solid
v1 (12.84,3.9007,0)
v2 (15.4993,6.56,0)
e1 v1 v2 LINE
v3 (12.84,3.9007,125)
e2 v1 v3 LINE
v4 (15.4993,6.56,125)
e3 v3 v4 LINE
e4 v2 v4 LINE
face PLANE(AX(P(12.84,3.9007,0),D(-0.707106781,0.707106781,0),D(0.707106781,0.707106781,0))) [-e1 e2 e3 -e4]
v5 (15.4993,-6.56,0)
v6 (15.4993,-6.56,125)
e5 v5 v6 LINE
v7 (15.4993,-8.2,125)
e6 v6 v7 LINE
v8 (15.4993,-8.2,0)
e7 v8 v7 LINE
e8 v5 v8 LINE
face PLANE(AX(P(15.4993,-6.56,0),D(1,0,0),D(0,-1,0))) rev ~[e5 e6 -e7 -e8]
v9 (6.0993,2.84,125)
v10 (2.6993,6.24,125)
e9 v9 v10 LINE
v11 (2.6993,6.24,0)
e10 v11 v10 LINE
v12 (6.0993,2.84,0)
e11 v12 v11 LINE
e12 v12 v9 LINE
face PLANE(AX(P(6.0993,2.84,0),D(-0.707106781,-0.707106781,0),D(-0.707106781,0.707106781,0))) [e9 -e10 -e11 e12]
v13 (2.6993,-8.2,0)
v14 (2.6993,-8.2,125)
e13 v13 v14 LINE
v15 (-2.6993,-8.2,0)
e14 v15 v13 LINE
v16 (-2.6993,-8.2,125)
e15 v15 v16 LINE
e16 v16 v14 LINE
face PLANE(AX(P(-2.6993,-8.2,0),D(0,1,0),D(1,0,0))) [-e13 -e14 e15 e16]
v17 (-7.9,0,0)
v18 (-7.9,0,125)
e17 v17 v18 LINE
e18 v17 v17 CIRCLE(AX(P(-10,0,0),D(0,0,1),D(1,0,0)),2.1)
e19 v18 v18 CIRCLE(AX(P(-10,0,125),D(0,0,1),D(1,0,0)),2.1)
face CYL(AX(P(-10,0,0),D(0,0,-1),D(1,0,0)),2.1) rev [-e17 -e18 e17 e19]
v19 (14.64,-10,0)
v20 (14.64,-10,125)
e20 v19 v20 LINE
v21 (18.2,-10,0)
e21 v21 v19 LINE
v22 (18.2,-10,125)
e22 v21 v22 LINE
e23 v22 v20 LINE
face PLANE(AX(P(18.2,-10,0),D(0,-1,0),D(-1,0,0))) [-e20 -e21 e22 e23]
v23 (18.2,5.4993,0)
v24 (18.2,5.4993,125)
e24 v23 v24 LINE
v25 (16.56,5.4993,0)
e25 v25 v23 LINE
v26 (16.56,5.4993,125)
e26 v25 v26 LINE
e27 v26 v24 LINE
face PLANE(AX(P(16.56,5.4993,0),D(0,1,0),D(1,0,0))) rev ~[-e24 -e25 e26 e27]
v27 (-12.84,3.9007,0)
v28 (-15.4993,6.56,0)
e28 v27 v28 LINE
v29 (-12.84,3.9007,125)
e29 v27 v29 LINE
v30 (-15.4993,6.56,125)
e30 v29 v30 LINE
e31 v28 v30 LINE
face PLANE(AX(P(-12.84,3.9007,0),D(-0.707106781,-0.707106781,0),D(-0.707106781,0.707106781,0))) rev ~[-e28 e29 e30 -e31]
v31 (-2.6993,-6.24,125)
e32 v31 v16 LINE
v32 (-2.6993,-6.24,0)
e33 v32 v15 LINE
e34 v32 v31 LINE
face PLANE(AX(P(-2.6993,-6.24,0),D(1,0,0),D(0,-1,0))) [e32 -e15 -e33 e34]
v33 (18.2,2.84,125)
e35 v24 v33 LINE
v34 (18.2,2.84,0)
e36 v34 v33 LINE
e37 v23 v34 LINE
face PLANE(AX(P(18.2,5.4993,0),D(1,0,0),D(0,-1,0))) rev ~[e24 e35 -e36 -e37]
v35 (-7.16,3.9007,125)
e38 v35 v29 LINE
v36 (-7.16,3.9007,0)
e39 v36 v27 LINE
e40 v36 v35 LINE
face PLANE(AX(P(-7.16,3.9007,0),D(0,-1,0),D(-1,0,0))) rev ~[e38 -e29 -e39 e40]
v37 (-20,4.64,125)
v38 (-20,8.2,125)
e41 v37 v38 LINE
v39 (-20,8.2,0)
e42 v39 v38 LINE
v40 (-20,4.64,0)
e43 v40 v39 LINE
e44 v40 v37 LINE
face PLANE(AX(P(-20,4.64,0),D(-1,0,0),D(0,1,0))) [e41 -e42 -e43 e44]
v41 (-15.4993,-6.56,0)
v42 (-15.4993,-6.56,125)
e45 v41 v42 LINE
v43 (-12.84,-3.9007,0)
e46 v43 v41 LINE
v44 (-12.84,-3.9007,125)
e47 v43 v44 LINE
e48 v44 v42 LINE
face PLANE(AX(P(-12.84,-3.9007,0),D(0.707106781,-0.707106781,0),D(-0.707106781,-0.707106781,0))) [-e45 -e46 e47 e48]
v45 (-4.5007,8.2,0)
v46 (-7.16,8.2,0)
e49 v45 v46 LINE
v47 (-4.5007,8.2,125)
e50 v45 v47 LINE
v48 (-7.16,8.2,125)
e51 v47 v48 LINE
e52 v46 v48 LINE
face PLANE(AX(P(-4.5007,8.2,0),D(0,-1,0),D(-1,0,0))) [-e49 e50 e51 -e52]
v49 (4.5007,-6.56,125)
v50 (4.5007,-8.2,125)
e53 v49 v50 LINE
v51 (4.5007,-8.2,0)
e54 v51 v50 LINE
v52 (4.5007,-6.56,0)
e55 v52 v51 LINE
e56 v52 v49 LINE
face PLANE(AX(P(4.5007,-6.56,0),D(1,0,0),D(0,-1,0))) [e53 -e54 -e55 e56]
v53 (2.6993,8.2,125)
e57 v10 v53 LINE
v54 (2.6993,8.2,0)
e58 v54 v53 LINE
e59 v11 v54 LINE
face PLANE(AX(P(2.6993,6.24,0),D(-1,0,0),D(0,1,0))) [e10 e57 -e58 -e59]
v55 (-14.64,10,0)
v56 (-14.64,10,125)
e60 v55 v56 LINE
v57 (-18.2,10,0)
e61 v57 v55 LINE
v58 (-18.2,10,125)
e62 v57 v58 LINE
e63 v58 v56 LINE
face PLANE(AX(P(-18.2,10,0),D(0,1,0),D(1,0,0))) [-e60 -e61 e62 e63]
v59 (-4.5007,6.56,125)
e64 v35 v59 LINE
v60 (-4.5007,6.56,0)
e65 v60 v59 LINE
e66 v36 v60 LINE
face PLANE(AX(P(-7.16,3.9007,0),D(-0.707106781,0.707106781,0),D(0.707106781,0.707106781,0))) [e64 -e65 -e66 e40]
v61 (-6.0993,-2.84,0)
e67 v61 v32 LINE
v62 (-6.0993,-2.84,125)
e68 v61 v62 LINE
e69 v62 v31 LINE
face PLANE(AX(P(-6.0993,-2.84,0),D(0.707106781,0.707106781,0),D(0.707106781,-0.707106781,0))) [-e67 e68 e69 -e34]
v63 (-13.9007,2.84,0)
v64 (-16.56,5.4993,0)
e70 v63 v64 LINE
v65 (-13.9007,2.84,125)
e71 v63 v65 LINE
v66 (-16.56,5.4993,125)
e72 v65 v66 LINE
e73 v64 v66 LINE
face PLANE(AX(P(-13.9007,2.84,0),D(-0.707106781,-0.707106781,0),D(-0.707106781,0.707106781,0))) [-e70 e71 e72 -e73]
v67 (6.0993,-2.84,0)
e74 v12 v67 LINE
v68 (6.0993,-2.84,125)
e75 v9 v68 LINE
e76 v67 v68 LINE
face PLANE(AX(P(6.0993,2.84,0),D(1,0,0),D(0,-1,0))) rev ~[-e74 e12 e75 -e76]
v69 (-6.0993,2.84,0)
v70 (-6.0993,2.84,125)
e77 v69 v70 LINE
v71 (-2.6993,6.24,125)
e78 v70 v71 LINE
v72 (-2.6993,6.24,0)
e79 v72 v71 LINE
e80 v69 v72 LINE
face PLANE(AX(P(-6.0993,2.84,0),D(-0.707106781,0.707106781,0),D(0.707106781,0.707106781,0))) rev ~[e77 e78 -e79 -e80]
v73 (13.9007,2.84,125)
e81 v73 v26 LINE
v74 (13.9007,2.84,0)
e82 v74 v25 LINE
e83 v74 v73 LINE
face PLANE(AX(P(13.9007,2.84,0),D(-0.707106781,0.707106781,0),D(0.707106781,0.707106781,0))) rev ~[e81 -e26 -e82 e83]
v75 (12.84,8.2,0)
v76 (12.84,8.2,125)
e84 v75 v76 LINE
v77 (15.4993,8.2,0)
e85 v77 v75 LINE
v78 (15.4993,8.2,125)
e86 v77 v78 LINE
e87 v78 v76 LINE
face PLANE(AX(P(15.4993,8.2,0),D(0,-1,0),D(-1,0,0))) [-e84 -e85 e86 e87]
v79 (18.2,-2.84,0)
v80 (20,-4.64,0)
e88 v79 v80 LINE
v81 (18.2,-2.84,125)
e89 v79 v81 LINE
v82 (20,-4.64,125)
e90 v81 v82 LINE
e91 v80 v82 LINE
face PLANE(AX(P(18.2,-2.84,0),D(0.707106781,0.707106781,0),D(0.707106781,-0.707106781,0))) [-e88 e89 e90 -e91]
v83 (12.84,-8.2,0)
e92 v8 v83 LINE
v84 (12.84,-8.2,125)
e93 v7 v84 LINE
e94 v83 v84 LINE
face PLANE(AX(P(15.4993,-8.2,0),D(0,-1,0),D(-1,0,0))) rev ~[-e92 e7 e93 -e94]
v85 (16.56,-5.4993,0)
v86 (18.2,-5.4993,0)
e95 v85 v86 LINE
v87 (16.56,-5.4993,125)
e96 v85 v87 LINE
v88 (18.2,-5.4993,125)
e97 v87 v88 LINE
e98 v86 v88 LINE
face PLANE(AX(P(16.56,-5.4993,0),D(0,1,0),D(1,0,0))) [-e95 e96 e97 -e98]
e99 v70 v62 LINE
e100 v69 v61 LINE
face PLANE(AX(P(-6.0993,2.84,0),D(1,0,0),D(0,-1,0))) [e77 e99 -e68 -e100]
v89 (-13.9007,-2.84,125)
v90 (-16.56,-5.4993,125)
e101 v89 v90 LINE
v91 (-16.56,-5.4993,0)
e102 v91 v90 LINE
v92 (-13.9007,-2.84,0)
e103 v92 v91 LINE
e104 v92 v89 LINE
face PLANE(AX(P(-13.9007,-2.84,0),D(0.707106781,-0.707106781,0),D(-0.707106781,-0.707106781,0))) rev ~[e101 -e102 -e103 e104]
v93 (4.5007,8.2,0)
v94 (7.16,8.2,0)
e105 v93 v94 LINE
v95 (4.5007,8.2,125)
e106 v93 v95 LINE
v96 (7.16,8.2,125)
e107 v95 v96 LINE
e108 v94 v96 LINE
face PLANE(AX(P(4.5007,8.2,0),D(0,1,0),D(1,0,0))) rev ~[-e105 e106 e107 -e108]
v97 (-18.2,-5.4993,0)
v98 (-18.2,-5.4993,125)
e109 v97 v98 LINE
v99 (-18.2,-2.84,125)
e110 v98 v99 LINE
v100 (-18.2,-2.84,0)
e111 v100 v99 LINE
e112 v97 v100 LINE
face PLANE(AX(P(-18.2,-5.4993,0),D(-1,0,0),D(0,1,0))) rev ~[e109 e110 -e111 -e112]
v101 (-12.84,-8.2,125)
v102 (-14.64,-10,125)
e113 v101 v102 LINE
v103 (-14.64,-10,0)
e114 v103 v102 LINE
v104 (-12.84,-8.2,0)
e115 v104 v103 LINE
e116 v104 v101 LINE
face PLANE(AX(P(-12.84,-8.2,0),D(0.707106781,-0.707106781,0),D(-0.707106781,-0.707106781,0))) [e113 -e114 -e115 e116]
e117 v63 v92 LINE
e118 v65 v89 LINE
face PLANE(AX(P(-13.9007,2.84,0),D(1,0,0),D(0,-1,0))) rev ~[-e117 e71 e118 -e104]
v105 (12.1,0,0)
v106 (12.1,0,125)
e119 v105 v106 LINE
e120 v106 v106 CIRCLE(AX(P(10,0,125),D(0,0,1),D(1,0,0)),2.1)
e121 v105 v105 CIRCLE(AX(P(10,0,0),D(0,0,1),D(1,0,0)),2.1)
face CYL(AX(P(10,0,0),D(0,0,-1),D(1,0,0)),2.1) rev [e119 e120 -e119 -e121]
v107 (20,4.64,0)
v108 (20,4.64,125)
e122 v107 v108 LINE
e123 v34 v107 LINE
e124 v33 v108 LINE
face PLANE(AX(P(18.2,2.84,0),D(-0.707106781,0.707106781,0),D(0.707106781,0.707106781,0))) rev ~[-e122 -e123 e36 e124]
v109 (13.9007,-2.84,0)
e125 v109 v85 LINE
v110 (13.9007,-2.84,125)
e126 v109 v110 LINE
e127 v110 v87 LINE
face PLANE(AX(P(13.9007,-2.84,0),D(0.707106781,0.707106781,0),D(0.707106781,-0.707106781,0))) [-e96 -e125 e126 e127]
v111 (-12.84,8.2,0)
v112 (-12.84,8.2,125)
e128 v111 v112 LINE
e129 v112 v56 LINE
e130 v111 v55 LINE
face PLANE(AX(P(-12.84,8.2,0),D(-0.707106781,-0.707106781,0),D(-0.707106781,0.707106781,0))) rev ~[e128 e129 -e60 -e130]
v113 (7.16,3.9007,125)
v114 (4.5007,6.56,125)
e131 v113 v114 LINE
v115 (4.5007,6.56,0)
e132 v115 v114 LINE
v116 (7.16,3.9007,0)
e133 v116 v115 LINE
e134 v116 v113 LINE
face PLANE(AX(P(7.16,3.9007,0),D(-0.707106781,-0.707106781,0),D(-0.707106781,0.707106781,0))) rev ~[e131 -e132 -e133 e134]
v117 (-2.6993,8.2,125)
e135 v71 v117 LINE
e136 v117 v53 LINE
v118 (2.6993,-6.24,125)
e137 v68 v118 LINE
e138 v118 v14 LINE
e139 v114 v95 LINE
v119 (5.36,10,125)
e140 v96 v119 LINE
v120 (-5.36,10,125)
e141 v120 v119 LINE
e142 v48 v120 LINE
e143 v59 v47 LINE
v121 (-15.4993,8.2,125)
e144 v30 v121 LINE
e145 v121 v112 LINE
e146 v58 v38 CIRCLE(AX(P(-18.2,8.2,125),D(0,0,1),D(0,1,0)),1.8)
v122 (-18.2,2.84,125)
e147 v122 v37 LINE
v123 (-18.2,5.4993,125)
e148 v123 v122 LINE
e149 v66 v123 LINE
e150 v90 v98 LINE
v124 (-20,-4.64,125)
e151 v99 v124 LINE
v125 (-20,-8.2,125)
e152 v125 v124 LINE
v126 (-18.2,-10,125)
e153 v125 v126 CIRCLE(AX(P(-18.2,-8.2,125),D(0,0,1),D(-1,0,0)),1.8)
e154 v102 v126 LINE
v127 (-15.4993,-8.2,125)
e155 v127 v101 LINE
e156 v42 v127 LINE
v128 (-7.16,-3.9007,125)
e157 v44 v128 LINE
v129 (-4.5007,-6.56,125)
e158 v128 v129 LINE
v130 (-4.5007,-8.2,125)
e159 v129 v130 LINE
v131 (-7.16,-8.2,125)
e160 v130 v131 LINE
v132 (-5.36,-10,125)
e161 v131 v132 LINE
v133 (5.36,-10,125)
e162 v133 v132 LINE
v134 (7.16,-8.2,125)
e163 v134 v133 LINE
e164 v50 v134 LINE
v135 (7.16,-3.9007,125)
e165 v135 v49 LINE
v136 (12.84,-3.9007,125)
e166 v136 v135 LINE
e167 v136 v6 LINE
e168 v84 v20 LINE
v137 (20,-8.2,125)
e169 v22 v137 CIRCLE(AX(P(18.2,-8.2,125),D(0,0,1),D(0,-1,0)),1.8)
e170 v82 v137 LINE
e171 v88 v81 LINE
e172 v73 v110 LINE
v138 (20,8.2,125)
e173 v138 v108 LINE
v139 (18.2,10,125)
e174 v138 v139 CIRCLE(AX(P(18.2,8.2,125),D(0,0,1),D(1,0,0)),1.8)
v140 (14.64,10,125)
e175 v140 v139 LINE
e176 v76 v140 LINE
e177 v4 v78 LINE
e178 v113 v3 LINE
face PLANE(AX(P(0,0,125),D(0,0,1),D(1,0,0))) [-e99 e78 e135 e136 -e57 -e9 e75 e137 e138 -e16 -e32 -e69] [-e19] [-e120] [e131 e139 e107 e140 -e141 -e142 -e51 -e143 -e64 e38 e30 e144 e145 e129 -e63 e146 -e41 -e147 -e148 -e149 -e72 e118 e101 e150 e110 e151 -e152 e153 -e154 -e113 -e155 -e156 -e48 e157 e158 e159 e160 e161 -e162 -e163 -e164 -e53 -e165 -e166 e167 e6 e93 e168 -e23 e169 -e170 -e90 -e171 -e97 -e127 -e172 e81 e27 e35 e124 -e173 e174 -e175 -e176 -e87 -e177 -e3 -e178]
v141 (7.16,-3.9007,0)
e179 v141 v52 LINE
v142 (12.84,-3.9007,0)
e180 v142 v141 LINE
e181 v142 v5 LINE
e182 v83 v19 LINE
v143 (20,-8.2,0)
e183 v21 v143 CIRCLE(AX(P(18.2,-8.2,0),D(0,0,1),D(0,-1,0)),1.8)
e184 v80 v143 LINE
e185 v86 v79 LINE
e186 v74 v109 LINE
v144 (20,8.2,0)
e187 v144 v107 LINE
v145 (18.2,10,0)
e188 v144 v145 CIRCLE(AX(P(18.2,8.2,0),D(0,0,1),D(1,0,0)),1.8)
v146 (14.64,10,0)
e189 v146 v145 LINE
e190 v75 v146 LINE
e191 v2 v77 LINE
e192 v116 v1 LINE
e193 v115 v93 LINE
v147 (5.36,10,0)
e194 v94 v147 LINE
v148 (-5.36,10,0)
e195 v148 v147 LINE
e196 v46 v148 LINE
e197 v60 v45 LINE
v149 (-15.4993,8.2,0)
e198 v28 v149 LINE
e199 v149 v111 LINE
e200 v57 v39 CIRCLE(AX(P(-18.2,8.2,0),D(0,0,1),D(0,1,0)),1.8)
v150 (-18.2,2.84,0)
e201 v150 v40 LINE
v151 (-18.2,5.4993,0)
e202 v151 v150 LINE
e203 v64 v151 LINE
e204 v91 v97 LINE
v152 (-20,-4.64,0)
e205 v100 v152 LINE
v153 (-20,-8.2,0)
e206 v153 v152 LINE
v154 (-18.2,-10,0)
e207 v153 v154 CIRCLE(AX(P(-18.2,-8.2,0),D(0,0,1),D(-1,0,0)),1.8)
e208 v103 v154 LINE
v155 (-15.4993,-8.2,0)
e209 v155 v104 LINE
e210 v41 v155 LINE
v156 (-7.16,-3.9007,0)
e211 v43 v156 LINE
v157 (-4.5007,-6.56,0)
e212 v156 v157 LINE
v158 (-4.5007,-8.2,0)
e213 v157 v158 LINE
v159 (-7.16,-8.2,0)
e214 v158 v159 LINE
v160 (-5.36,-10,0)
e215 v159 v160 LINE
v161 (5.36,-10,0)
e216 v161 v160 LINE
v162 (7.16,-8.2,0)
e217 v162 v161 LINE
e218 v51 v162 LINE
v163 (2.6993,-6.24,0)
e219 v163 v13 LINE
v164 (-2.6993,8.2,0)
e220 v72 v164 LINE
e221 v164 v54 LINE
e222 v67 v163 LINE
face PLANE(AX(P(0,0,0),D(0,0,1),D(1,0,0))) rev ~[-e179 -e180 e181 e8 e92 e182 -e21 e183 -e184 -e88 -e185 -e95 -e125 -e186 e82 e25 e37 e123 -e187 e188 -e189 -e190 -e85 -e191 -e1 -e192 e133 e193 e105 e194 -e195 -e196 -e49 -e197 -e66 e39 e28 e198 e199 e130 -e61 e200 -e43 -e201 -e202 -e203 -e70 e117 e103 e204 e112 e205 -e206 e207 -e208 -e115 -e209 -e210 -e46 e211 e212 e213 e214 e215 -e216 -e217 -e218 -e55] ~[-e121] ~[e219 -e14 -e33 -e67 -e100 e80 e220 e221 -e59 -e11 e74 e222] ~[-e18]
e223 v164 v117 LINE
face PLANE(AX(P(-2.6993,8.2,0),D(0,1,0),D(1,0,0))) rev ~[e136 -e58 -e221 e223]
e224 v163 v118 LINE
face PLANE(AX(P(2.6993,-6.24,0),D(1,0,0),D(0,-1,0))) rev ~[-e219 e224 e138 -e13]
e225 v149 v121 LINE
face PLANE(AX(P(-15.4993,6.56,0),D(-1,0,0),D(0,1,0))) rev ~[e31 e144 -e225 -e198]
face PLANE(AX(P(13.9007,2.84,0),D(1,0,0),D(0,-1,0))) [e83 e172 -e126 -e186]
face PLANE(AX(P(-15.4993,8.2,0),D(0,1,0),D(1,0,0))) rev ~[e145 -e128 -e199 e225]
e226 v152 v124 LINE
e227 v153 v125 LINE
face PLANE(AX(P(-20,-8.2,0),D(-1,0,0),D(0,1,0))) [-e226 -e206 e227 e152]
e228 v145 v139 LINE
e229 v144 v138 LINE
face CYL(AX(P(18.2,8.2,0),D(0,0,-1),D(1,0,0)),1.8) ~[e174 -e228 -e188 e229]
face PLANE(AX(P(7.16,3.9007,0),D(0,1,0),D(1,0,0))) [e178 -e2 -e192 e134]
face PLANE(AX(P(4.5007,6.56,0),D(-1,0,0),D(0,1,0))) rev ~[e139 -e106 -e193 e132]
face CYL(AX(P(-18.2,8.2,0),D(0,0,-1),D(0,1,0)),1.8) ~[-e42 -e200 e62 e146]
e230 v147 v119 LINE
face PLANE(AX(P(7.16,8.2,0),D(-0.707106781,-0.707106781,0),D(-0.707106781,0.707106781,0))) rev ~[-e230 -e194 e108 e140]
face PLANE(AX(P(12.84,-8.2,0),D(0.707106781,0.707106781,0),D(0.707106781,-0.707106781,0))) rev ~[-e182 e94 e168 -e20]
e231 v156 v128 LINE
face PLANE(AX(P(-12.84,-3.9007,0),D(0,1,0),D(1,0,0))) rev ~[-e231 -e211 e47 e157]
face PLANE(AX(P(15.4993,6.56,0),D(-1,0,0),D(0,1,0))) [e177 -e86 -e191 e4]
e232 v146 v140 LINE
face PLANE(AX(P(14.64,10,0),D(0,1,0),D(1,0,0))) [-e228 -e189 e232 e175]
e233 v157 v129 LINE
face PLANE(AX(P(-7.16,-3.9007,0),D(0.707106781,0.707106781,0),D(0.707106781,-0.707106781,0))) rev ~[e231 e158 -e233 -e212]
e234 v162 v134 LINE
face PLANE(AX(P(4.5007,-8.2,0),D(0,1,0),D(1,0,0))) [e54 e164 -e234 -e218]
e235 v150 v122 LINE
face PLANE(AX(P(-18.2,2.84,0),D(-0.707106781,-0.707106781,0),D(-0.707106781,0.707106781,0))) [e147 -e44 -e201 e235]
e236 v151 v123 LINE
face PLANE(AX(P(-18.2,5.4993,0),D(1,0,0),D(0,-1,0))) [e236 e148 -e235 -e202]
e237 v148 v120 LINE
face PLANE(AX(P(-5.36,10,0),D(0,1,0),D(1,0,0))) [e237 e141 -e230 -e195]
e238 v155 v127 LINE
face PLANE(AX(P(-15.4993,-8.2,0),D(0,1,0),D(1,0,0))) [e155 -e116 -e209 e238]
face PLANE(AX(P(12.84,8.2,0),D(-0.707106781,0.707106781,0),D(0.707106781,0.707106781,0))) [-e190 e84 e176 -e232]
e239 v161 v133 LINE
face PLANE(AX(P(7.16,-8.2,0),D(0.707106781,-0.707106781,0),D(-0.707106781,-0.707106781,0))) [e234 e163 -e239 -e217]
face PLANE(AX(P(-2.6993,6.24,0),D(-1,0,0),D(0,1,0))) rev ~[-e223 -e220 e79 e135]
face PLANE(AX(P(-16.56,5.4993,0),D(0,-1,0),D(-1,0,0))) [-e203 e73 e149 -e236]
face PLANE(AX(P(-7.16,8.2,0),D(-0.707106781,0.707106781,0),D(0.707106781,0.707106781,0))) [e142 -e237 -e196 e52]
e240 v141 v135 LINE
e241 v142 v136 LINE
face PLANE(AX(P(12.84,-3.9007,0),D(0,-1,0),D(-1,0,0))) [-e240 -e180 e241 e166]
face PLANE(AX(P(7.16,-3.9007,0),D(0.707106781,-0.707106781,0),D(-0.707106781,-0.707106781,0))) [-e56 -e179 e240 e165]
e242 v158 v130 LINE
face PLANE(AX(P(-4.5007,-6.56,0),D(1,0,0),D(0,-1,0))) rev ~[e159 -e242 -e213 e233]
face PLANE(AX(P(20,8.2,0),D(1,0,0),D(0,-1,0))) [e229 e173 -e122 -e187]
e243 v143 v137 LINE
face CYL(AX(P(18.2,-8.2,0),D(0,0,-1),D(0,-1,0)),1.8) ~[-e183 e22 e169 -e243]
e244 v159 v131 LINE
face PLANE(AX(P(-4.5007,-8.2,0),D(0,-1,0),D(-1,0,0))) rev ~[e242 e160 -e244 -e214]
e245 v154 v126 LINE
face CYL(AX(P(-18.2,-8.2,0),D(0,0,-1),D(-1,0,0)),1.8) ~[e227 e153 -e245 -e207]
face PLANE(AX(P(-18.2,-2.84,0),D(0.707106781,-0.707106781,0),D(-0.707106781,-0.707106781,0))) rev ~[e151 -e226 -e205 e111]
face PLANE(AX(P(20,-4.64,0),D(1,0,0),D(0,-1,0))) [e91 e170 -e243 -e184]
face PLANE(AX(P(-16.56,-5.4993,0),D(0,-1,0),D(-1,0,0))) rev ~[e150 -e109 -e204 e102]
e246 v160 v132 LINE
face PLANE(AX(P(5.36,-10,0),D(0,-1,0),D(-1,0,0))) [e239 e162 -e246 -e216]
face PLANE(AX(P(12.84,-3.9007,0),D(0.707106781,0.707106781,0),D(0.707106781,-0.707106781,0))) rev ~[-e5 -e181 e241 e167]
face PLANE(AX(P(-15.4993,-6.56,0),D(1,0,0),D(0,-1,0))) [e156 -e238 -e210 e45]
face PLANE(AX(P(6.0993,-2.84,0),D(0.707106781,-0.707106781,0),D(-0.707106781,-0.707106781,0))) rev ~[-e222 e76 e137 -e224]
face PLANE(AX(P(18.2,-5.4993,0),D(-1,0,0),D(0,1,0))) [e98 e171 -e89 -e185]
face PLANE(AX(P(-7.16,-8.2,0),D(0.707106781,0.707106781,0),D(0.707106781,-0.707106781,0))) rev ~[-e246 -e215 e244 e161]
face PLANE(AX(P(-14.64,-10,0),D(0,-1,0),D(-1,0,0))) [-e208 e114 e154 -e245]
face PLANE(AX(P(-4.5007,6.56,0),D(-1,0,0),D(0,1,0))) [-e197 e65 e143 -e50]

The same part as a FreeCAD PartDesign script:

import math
import FreeCAD as App
import Part
import Sketcher

doc = App.newDocument("Part")
body = doc.addObject("PartDesign::Body", "Body")

sketch1 = doc.addObject("Sketcher::SketchObject", "Sketch")
body.addObject(sketch1)
sketch1.AttachmentSupport = (doc.XY_Plane, [""])
sketch1.MapMode = "FlatFace"
sketch1.addGeometry(Part.LineSegment(App.Vector(-15.4993, -6.56, 0), App.Vector(-12.84, -3.9007, 0)), False)
sketch1.addGeometry(Part.LineSegment(App.Vector(-12.84, -3.9007, 0), App.Vector(-7.16, -3.9007, 0)), False)
sketch1.addGeometry(Part.LineSegment(App.Vector(-7.16, -3.9007, 0), App.Vector(-4.5007, -6.56, 0)), False)
sketch1.addGeometry(Part.LineSegment(App.Vector(-4.5007, -6.56, 0), App.Vector(-4.5007, -8.2, 0)), False)
sketch1.addGeometry(Part.LineSegment(App.Vector(-4.5007, -8.2, 0), App.Vector(-7.16, -8.2, 0)), False)
sketch1.addGeometry(Part.LineSegment(App.Vector(-7.16, -8.2, 0), App.Vector(-5.36, -10, 0)), False)
sketch1.addGeometry(Part.LineSegment(App.Vector(-5.36, -10, 0), App.Vector(5.36, -10, 0)), False)
sketch1.addGeometry(Part.LineSegment(App.Vector(5.36, -10, 0), App.Vector(7.16, -8.2, 0)), False)
sketch1.addGeometry(Part.LineSegment(App.Vector(7.16, -8.2, 0), App.Vector(4.5007, -8.2, 0)), False)
sketch1.addGeometry(Part.LineSegment(App.Vector(4.5007, -8.2, 0), App.Vector(4.5007, -6.56, 0)), False)
sketch1.addGeometry(Part.LineSegment(App.Vector(4.5007, -6.56, 0), App.Vector(7.16, -3.9007, 0)), False)
sketch1.addGeometry(Part.LineSegment(App.Vector(7.16, -3.9007, 0), App.Vector(12.84, -3.9007, 0)), False)
sketch1.addGeometry(Part.LineSegment(App.Vector(12.84, -3.9007, 0), App.Vector(15.4993, -6.56, 0)), False)
sketch1.addGeometry(Part.LineSegment(App.Vector(15.4993, -6.56, 0), App.Vector(15.4993, -8.2, 0)), False)
sketch1.addGeometry(Part.LineSegment(App.Vector(15.4993, -8.2, 0), App.Vector(12.84, -8.2, 0)), False)
sketch1.addGeometry(Part.LineSegment(App.Vector(12.84, -8.2, 0), App.Vector(14.64, -10, 0)), False)
sketch1.addGeometry(Part.LineSegment(App.Vector(14.64, -10, 0), App.Vector(18.2, -10, 0)), False)
sketch1.addGeometry(Part.ArcOfCircle(Part.Circle(App.Vector(18.2, -8.2, 0), App.Vector(0, 0, 1), 1.8), math.radians(-90), math.radians(0)), False)
sketch1.addGeometry(Part.LineSegment(App.Vector(20, -8.2, 0), App.Vector(20, -4.64, 0)), False)
sketch1.addGeometry(Part.LineSegment(App.Vector(20, -4.64, 0), App.Vector(18.2, -2.84, 0)), False)
sketch1.addGeometry(Part.LineSegment(App.Vector(18.2, -2.84, 0), App.Vector(18.2, -5.4993, 0)), False)
sketch1.addGeometry(Part.LineSegment(App.Vector(18.2, -5.4993, 0), App.Vector(16.56, -5.4993, 0)), False)
sketch1.addGeometry(Part.LineSegment(App.Vector(16.56, -5.4993, 0), App.Vector(13.9007, -2.84, 0)), False)
sketch1.addGeometry(Part.LineSegment(App.Vector(13.9007, -2.84, 0), App.Vector(13.9007, 2.84, 0)), False)
sketch1.addGeometry(Part.LineSegment(App.Vector(13.9007, 2.84, 0), App.Vector(16.56, 5.4993, 0)), False)
sketch1.addGeometry(Part.LineSegment(App.Vector(16.56, 5.4993, 0), App.Vector(18.2, 5.4993, 0)), False)
sketch1.addGeometry(Part.LineSegment(App.Vector(18.2, 5.4993, 0), App.Vector(18.2, 2.84, 0)), False)
sketch1.addGeometry(Part.LineSegment(App.Vector(18.2, 2.84, 0), App.Vector(20, 4.64, 0)), False)
sketch1.addGeometry(Part.LineSegment(App.Vector(20, 4.64, 0), App.Vector(20, 8.2, 0)), False)
sketch1.addGeometry(Part.ArcOfCircle(Part.Circle(App.Vector(18.2, 8.2, 0), App.Vector(0, 0, 1), 1.8), math.radians(0), math.radians(90)), False)
sketch1.addGeometry(Part.LineSegment(App.Vector(18.2, 10, 0), App.Vector(14.64, 10, 0)), False)
sketch1.addGeometry(Part.LineSegment(App.Vector(14.64, 10, 0), App.Vector(12.84, 8.2, 0)), False)
sketch1.addGeometry(Part.LineSegment(App.Vector(12.84, 8.2, 0), App.Vector(15.4993, 8.2, 0)), False)
sketch1.addGeometry(Part.LineSegment(App.Vector(15.4993, 8.2, 0), App.Vector(15.4993, 6.56, 0)), False)
sketch1.addGeometry(Part.LineSegment(App.Vector(15.4993, 6.56, 0), App.Vector(12.84, 3.9007, 0)), False)
sketch1.addGeometry(Part.LineSegment(App.Vector(12.84, 3.9007, 0), App.Vector(7.16, 3.9007, 0)), False)
sketch1.addGeometry(Part.LineSegment(App.Vector(7.16, 3.9007, 0), App.Vector(4.5007, 6.56, 0)), False)
sketch1.addGeometry(Part.LineSegment(App.Vector(4.5007, 6.56, 0), App.Vector(4.5007, 8.2, 0)), False)
sketch1.addGeometry(Part.LineSegment(App.Vector(4.5007, 8.2, 0), App.Vector(7.16, 8.2, 0)), False)
sketch1.addGeometry(Part.LineSegment(App.Vector(7.16, 8.2, 0), App.Vector(5.36, 10, 0)), False)
sketch1.addGeometry(Part.LineSegment(App.Vector(5.36, 10, 0), App.Vector(-5.36, 10, 0)), False)
sketch1.addGeometry(Part.LineSegment(App.Vector(-5.36, 10, 0), App.Vector(-7.16, 8.2, 0)), False)
sketch1.addGeometry(Part.LineSegment(App.Vector(-7.16, 8.2, 0), App.Vector(-4.5007, 8.2, 0)), False)
sketch1.addGeometry(Part.LineSegment(App.Vector(-4.5007, 8.2, 0), App.Vector(-4.5007, 6.56, 0)), False)
sketch1.addGeometry(Part.LineSegment(App.Vector(-4.5007, 6.56, 0), App.Vector(-7.16, 3.9007, 0)), False)
sketch1.addGeometry(Part.LineSegment(App.Vector(-7.16, 3.9007, 0), App.Vector(-12.84, 3.9007, 0)), False)
sketch1.addGeometry(Part.LineSegment(App.Vector(-12.84, 3.9007, 0), App.Vector(-15.4993, 6.56, 0)), False)
sketch1.addGeometry(Part.LineSegment(App.Vector(-15.4993, 6.56, 0), App.Vector(-15.4993, 8.2, 0)), False)
sketch1.addGeometry(Part.LineSegment(App.Vector(-15.4993, 8.2, 0), App.Vector(-12.84, 8.2, 0)), False)
sketch1.addGeometry(Part.LineSegment(App.Vector(-12.84, 8.2, 0), App.Vector(-14.64, 10, 0)), False)
sketch1.addGeometry(Part.LineSegment(App.Vector(-14.64, 10, 0), App.Vector(-18.2, 10, 0)), False)
sketch1.addGeometry(Part.ArcOfCircle(Part.Circle(App.Vector(-18.2, 8.2, 0), App.Vector(0, 0, 1), 1.8), math.radians(90), math.radians(180)), False)
sketch1.addGeometry(Part.LineSegment(App.Vector(-20, 8.2, 0), App.Vector(-20, 4.64, 0)), False)
sketch1.addGeometry(Part.LineSegment(App.Vector(-20, 4.64, 0), App.Vector(-18.2, 2.84, 0)), False)
sketch1.addGeometry(Part.LineSegment(App.Vector(-18.2, 2.84, 0), App.Vector(-18.2, 5.4993, 0)), False)
sketch1.addGeometry(Part.LineSegment(App.Vector(-18.2, 5.4993, 0), App.Vector(-16.56, 5.4993, 0)), False)
sketch1.addGeometry(Part.LineSegment(App.Vector(-16.56, 5.4993, 0), App.Vector(-13.9007, 2.84, 0)), False)
sketch1.addGeometry(Part.LineSegment(App.Vector(-13.9007, 2.84, 0), App.Vector(-13.9007, -2.84, 0)), False)
sketch1.addGeometry(Part.LineSegment(App.Vector(-13.9007, -2.84, 0), App.Vector(-16.56, -5.4993, 0)), False)
sketch1.addGeometry(Part.LineSegment(App.Vector(-16.56, -5.4993, 0), App.Vector(-18.2, -5.4993, 0)), False)
sketch1.addGeometry(Part.LineSegment(App.Vector(-18.2, -5.4993, 0), App.Vector(-18.2, -2.84, 0)), False)
sketch1.addGeometry(Part.LineSegment(App.Vector(-18.2, -2.84, 0), App.Vector(-20, -4.64, 0)), False)
sketch1.addGeometry(Part.LineSegment(App.Vector(-20, -4.64, 0), App.Vector(-20, -8.2, 0)), False)
sketch1.addGeometry(Part.ArcOfCircle(Part.Circle(App.Vector(-18.2, -8.2, 0), App.Vector(0, 0, 1), 1.8), math.radians(180), math.radians(270)), False)
sketch1.addGeometry(Part.LineSegment(App.Vector(-18.2, -10, 0), App.Vector(-14.64, -10, 0)), False)
sketch1.addGeometry(Part.LineSegment(App.Vector(-14.64, -10, 0), App.Vector(-12.84, -8.2, 0)), False)
sketch1.addGeometry(Part.LineSegment(App.Vector(-12.84, -8.2, 0), App.Vector(-15.4993, -8.2, 0)), False)
sketch1.addGeometry(Part.LineSegment(App.Vector(-15.4993, -8.2, 0), App.Vector(-15.4993, -6.56, 0)), False)
sketch1.addGeometry(Part.Circle(App.Vector(-10, 0, 0), App.Vector(0, 0, 1), 2.1), False)
sketch1.addGeometry(Part.LineSegment(App.Vector(-6.0993, -2.84, 0), App.Vector(-6.0993, 2.84, 0)), False)
sketch1.addGeometry(Part.LineSegment(App.Vector(-6.0993, 2.84, 0), App.Vector(-2.6993, 6.24, 0)), False)
sketch1.addGeometry(Part.LineSegment(App.Vector(-2.6993, 6.24, 0), App.Vector(-2.6993, 8.2, 0)), False)
sketch1.addGeometry(Part.LineSegment(App.Vector(-2.6993, 8.2, 0), App.Vector(2.6993, 8.2, 0)), False)
sketch1.addGeometry(Part.LineSegment(App.Vector(2.6993, 8.2, 0), App.Vector(2.6993, 6.24, 0)), False)
sketch1.addGeometry(Part.LineSegment(App.Vector(2.6993, 6.24, 0), App.Vector(6.0993, 2.84, 0)), False)
sketch1.addGeometry(Part.LineSegment(App.Vector(6.0993, 2.84, 0), App.Vector(6.0993, -2.84, 0)), False)
sketch1.addGeometry(Part.LineSegment(App.Vector(6.0993, -2.84, 0), App.Vector(2.6993, -6.24, 0)), False)
sketch1.addGeometry(Part.LineSegment(App.Vector(2.6993, -6.24, 0), App.Vector(2.6993, -8.2, 0)), False)
sketch1.addGeometry(Part.LineSegment(App.Vector(2.6993, -8.2, 0), App.Vector(-2.6993, -8.2, 0)), False)
sketch1.addGeometry(Part.LineSegment(App.Vector(-2.6993, -8.2, 0), App.Vector(-2.6993, -6.24, 0)), False)
sketch1.addGeometry(Part.LineSegment(App.Vector(-2.6993, -6.24, 0), App.Vector(-6.0993, -2.84, 0)), False)
sketch1.addGeometry(Part.Circle(App.Vector(10, 0, 0), App.Vector(0, 0, 1), 2.1), False)
sketch1.addConstraint(Sketcher.Constraint("Coincident", 0, 2, 1, 1))
sketch1.addConstraint(Sketcher.Constraint("Coincident", 1, 2, 2, 1))
sketch1.addConstraint(Sketcher.Constraint("Coincident", 2, 2, 3, 1))
sketch1.addConstraint(Sketcher.Constraint("Coincident", 3, 2, 4, 1))
sketch1.addConstraint(Sketcher.Constraint("Coincident", 4, 2, 5, 1))
sketch1.addConstraint(Sketcher.Constraint("Coincident", 5, 2, 6, 1))
sketch1.addConstraint(Sketcher.Constraint("Coincident", 6, 2, 7, 1))
sketch1.addConstraint(Sketcher.Constraint("Coincident", 7, 2, 8, 1))
sketch1.addConstraint(Sketcher.Constraint("Coincident", 8, 2, 9, 1))
sketch1.addConstraint(Sketcher.Constraint("Coincident", 9, 2, 10, 1))
sketch1.addConstraint(Sketcher.Constraint("Coincident", 10, 2, 11, 1))
sketch1.addConstraint(Sketcher.Constraint("Coincident", 11, 2, 12, 1))
sketch1.addConstraint(Sketcher.Constraint("Coincident", 12, 2, 13, 1))
sketch1.addConstraint(Sketcher.Constraint("Coincident", 13, 2, 14, 1))
sketch1.addConstraint(Sketcher.Constraint("Coincident", 14, 2, 15, 1))
sketch1.addConstraint(Sketcher.Constraint("Coincident", 15, 2, 16, 1))
sketch1.addConstraint(Sketcher.Constraint("Tangent", 16, 2, 17, 1))
sketch1.addConstraint(Sketcher.Constraint("Tangent", 17, 2, 18, 1))
sketch1.addConstraint(Sketcher.Constraint("Coincident", 18, 2, 19, 1))
sketch1.addConstraint(Sketcher.Constraint("Coincident", 19, 2, 20, 1))
sketch1.addConstraint(Sketcher.Constraint("Coincident", 20, 2, 21, 1))
sketch1.addConstraint(Sketcher.Constraint("Coincident", 21, 2, 22, 1))
sketch1.addConstraint(Sketcher.Constraint("Coincident", 22, 2, 23, 1))
sketch1.addConstraint(Sketcher.Constraint("Coincident", 23, 2, 24, 1))
sketch1.addConstraint(Sketcher.Constraint("Coincident", 24, 2, 25, 1))
sketch1.addConstraint(Sketcher.Constraint("Coincident", 25, 2, 26, 1))
sketch1.addConstraint(Sketcher.Constraint("Coincident", 26, 2, 27, 1))
sketch1.addConstraint(Sketcher.Constraint("Coincident", 27, 2, 28, 1))
sketch1.addConstraint(Sketcher.Constraint("Tangent", 28, 2, 29, 1))
sketch1.addConstraint(Sketcher.Constraint("Tangent", 29, 2, 30, 1))
sketch1.addConstraint(Sketcher.Constraint("Coincident", 30, 2, 31, 1))
sketch1.addConstraint(Sketcher.Constraint("Coincident", 31, 2, 32, 1))
sketch1.addConstraint(Sketcher.Constraint("Coincident", 32, 2, 33, 1))
sketch1.addConstraint(Sketcher.Constraint("Coincident", 33, 2, 34, 1))
sketch1.addConstraint(Sketcher.Constraint("Coincident", 34, 2, 35, 1))
sketch1.addConstraint(Sketcher.Constraint("Coincident", 35, 2, 36, 1))
sketch1.addConstraint(Sketcher.Constraint("Coincident", 36, 2, 37, 1))
sketch1.addConstraint(Sketcher.Constraint("Coincident", 37, 2, 38, 1))
sketch1.addConstraint(Sketcher.Constraint("Coincident", 38, 2, 39, 1))
sketch1.addConstraint(Sketcher.Constraint("Coincident", 39, 2, 40, 1))
sketch1.addConstraint(Sketcher.Constraint("Coincident", 40, 2, 41, 1))
sketch1.addConstraint(Sketcher.Constraint("Coincident", 41, 2, 42, 1))
sketch1.addConstraint(Sketcher.Constraint("Coincident", 42, 2, 43, 1))
sketch1.addConstraint(Sketcher.Constraint("Coincident", 43, 2, 44, 1))
sketch1.addConstraint(Sketcher.Constraint("Coincident", 44, 2, 45, 1))
sketch1.addConstraint(Sketcher.Constraint("Coincident", 45, 2, 46, 1))
sketch1.addConstraint(Sketcher.Constraint("Coincident", 46, 2, 47, 1))
sketch1.addConstraint(Sketcher.Constraint("Coincident", 47, 2, 48, 1))
sketch1.addConstraint(Sketcher.Constraint("Coincident", 48, 2, 49, 1))
sketch1.addConstraint(Sketcher.Constraint("Coincident", 49, 2, 50, 1))
sketch1.addConstraint(Sketcher.Constraint("Tangent", 50, 2, 51, 1))
sketch1.addConstraint(Sketcher.Constraint("Tangent", 51, 2, 52, 1))
sketch1.addConstraint(Sketcher.Constraint("Coincident", 52, 2, 53, 1))
sketch1.addConstraint(Sketcher.Constraint("Coincident", 53, 2, 54, 1))
sketch1.addConstraint(Sketcher.Constraint("Coincident", 54, 2, 55, 1))
sketch1.addConstraint(Sketcher.Constraint("Coincident", 55, 2, 56, 1))
sketch1.addConstraint(Sketcher.Constraint("Coincident", 56, 2, 57, 1))
sketch1.addConstraint(Sketcher.Constraint("Coincident", 57, 2, 58, 1))
sketch1.addConstraint(Sketcher.Constraint("Coincident", 58, 2, 59, 1))
sketch1.addConstraint(Sketcher.Constraint("Coincident", 59, 2, 60, 1))
sketch1.addConstraint(Sketcher.Constraint("Coincident", 60, 2, 61, 1))
sketch1.addConstraint(Sketcher.Constraint("Coincident", 61, 2, 62, 1))
sketch1.addConstraint(Sketcher.Constraint("Tangent", 62, 2, 63, 1))
sketch1.addConstraint(Sketcher.Constraint("Tangent", 63, 2, 64, 1))
sketch1.addConstraint(Sketcher.Constraint("Coincident", 64, 2, 65, 1))
sketch1.addConstraint(Sketcher.Constraint("Coincident", 65, 2, 66, 1))
sketch1.addConstraint(Sketcher.Constraint("Coincident", 66, 2, 67, 1))
sketch1.addConstraint(Sketcher.Constraint("Coincident", 67, 2, 0, 1))
sketch1.addConstraint(Sketcher.Constraint("Coincident", 69, 2, 70, 1))
sketch1.addConstraint(Sketcher.Constraint("Coincident", 70, 2, 71, 1))
sketch1.addConstraint(Sketcher.Constraint("Coincident", 71, 2, 72, 1))
sketch1.addConstraint(Sketcher.Constraint("Coincident", 72, 2, 73, 1))
sketch1.addConstraint(Sketcher.Constraint("Coincident", 73, 2, 74, 1))
sketch1.addConstraint(Sketcher.Constraint("Coincident", 74, 2, 75, 1))
sketch1.addConstraint(Sketcher.Constraint("Coincident", 75, 2, 76, 1))
sketch1.addConstraint(Sketcher.Constraint("Coincident", 76, 2, 77, 1))
sketch1.addConstraint(Sketcher.Constraint("Coincident", 77, 2, 78, 1))
sketch1.addConstraint(Sketcher.Constraint("Coincident", 78, 2, 79, 1))
sketch1.addConstraint(Sketcher.Constraint("Coincident", 79, 2, 80, 1))
sketch1.addConstraint(Sketcher.Constraint("Coincident", 80, 2, 69, 1))
sketch1.addConstraint(Sketcher.Constraint("Horizontal", 1))
sketch1.addConstraint(Sketcher.Constraint("Vertical", 3))
sketch1.addConstraint(Sketcher.Constraint("Horizontal", 4))
sketch1.addConstraint(Sketcher.Constraint("Horizontal", 6))
sketch1.addConstraint(Sketcher.Constraint("Horizontal", 8))
sketch1.addConstraint(Sketcher.Constraint("Vertical", 9))
sketch1.addConstraint(Sketcher.Constraint("Horizontal", 11))
sketch1.addConstraint(Sketcher.Constraint("Vertical", 13))
sketch1.addConstraint(Sketcher.Constraint("Horizontal", 14))
sketch1.addConstraint(Sketcher.Constraint("Horizontal", 16))
sketch1.addConstraint(Sketcher.Constraint("Vertical", 18))
sketch1.addConstraint(Sketcher.Constraint("Vertical", 20))
sketch1.addConstraint(Sketcher.Constraint("Horizontal", 21))
sketch1.addConstraint(Sketcher.Constraint("Vertical", 23))
sketch1.addConstraint(Sketcher.Constraint("Horizontal", 25))
sketch1.addConstraint(Sketcher.Constraint("Vertical", 26))
sketch1.addConstraint(Sketcher.Constraint("Vertical", 28))
sketch1.addConstraint(Sketcher.Constraint("Horizontal", 30))
sketch1.addConstraint(Sketcher.Constraint("Horizontal", 32))
sketch1.addConstraint(Sketcher.Constraint("Vertical", 33))
sketch1.addConstraint(Sketcher.Constraint("Horizontal", 35))
sketch1.addConstraint(Sketcher.Constraint("Vertical", 37))
sketch1.addConstraint(Sketcher.Constraint("Horizontal", 38))
sketch1.addConstraint(Sketcher.Constraint("Horizontal", 40))
sketch1.addConstraint(Sketcher.Constraint("Horizontal", 42))
sketch1.addConstraint(Sketcher.Constraint("Vertical", 43))
sketch1.addConstraint(Sketcher.Constraint("Horizontal", 45))
sketch1.addConstraint(Sketcher.Constraint("Vertical", 47))
sketch1.addConstraint(Sketcher.Constraint("Horizontal", 48))
sketch1.addConstraint(Sketcher.Constraint("Horizontal", 50))
sketch1.addConstraint(Sketcher.Constraint("Vertical", 52))
sketch1.addConstraint(Sketcher.Constraint("Vertical", 54))
sketch1.addConstraint(Sketcher.Constraint("Horizontal", 55))
sketch1.addConstraint(Sketcher.Constraint("Vertical", 57))
sketch1.addConstraint(Sketcher.Constraint("Horizontal", 59))
sketch1.addConstraint(Sketcher.Constraint("Vertical", 60))
sketch1.addConstraint(Sketcher.Constraint("Vertical", 62))
sketch1.addConstraint(Sketcher.Constraint("Horizontal", 64))
sketch1.addConstraint(Sketcher.Constraint("Horizontal", 66))
sketch1.addConstraint(Sketcher.Constraint("Vertical", 67))
sketch1.addConstraint(Sketcher.Constraint("Vertical", 69))
sketch1.addConstraint(Sketcher.Constraint("Vertical", 71))
sketch1.addConstraint(Sketcher.Constraint("Horizontal", 72))
sketch1.addConstraint(Sketcher.Constraint("Vertical", 73))
sketch1.addConstraint(Sketcher.Constraint("Vertical", 75))
sketch1.addConstraint(Sketcher.Constraint("Vertical", 77))
sketch1.addConstraint(Sketcher.Constraint("Horizontal", 78))
sketch1.addConstraint(Sketcher.Constraint("Vertical", 79))
sketch1.addConstraint(Sketcher.Constraint("Equal", 17, 29))
sketch1.addConstraint(Sketcher.Constraint("Equal", 29, 51))
sketch1.addConstraint(Sketcher.Constraint("Equal", 51, 63))
sketch1.addConstraint(Sketcher.Constraint("Equal", 68, 81))
sketch1.addConstraint(Sketcher.Constraint("Symmetric", 17, 3, 51, 3, -1, 1))
sketch1.addConstraint(Sketcher.Constraint("Symmetric", 29, 3, 63, 3, -1, 1))
sketch1.addConstraint(Sketcher.Constraint("Symmetric", 68, 3, 81, 3, -1, 1))
sketch1.addConstraint(Sketcher.Constraint("Symmetric", 0, 2, 34, 2, -1, 1))
sketch1.addConstraint(Sketcher.Constraint("Symmetric", 2, 2, 36, 2, -1, 1))
sketch1.addConstraint(Sketcher.Constraint("Symmetric", 4, 2, 38, 2, -1, 1))
sketch1.addConstraint(Sketcher.Constraint("Symmetric", 5, 2, 39, 2, -1, 1))
sketch1.addConstraint(Sketcher.Constraint("Symmetric", 7, 2, 41, 2, -1, 1))
sketch1.addConstraint(Sketcher.Constraint("Symmetric", 9, 2, 43, 2, -1, 1))
sketch1.addConstraint(Sketcher.Constraint("Symmetric", 10, 2, 44, 2, -1, 1))
sketch1.addConstraint(Sketcher.Constraint("Symmetric", 12, 2, 46, 2, -1, 1))
sketch1.addConstraint(Sketcher.Constraint("Symmetric", 14, 2, 48, 2, -1, 1))
sketch1.addConstraint(Sketcher.Constraint("Symmetric", 19, 2, 53, 2, -1, 1))
sketch1.addConstraint(Sketcher.Constraint("Symmetric", 21, 2, 55, 2, -1, 1))
sketch1.addConstraint(Sketcher.Constraint("Symmetric", 22, 2, 56, 2, -1, 1))
sketch1.addConstraint(Sketcher.Constraint("Symmetric", 24, 2, 58, 2, -1, 1))
sketch1.addConstraint(Sketcher.Constraint("Symmetric", 26, 2, 60, 2, -1, 1))
sketch1.addConstraint(Sketcher.Constraint("Symmetric", 31, 2, 65, 2, -1, 1))
sketch1.addConstraint(Sketcher.Constraint("Symmetric", 33, 2, 67, 2, -1, 1))
sketch1.addConstraint(Sketcher.Constraint("Symmetric", 69, 2, 75, 2, -1, 1))
sketch1.addConstraint(Sketcher.Constraint("Symmetric", 70, 2, 76, 2, -1, 1))
sketch1.addConstraint(Sketcher.Constraint("Symmetric", 72, 2, 78, 2, -1, 1))
sketch1.addConstraint(Sketcher.Constraint("Symmetric", 29, 3, 51, 3, -2))
sketch1.addConstraint(Sketcher.Constraint("Symmetric", 4, 2, 7, 2, -2))
sketch1.addConstraint(Sketcher.Constraint("Symmetric", 2, 2, 9, 2, -2))
sketch1.addConstraint(Sketcher.Constraint("Symmetric", 1, 2, 10, 2, -2))
sketch1.addConstraint(Sketcher.Constraint("Symmetric", 33, 2, 46, 2, -2))
sketch1.addConstraint(Sketcher.Constraint("Symmetric", 31, 2, 48, 2, -2))
sketch1.addConstraint(Sketcher.Constraint("Symmetric", 26, 2, 53, 2, -2))
sketch1.addConstraint(Sketcher.Constraint("Symmetric", 24, 2, 55, 2, -2))
sketch1.addConstraint(Sketcher.Constraint("Symmetric", 70, 2, 73, 2, -2))
sketch1.addConstraint(Sketcher.Constraint("PointOnObject", 68, 3, -1))
sketch1.addConstraint(Sketcher.Constraint("Perpendicular", 0, 2))
sketch1.addConstraint(Sketcher.Constraint("Parallel", 2, 5))
sketch1.addConstraint(Sketcher.Constraint("Perpendicular", 5, 7))
sketch1.addConstraint(Sketcher.Constraint("Parallel", 7, 10))
sketch1.addConstraint(Sketcher.Constraint("Perpendicular", 10, 12))
sketch1.addConstraint(Sketcher.Constraint("Parallel", 12, 15))
sketch1.addConstraint(Sketcher.Constraint("Parallel", 15, 19))
sketch1.addConstraint(Sketcher.Constraint("Parallel", 19, 22))
sketch1.addConstraint(Sketcher.Constraint("Perpendicular", 22, 24))
sketch1.addConstraint(Sketcher.Constraint("Parallel", 24, 27))
sketch1.addConstraint(Sketcher.Constraint("Parallel", 27, 31))
sketch1.addConstraint(Sketcher.Constraint("Perpendicular", 34, 36))
sketch1.addConstraint(Sketcher.Constraint("Perpendicular", 39, 41))
sketch1.addConstraint(Sketcher.Constraint("Perpendicular", 44, 46))
sketch1.addConstraint(Sketcher.Constraint("Parallel", 46, 49))
sketch1.addConstraint(Sketcher.Constraint("Parallel", 49, 53))
sketch1.addConstraint(Sketcher.Constraint("Perpendicular", 56, 58))
sketch1.addConstraint(Sketcher.Constraint("Parallel", 58, 61))
sketch1.addConstraint(Sketcher.Constraint("Parallel", 61, 65))
sketch1.addConstraint(Sketcher.Constraint("Parallel", 65, 70))
sketch1.addConstraint(Sketcher.Constraint("Perpendicular", 70, 74))
sketch1.addConstraint(Sketcher.Constraint("Perpendicular", 76, 80))
sketch1.addConstraint(Sketcher.Constraint("Horizontal", 63, 3, 3, 2))
sketch1.addConstraint(Sketcher.Constraint("Horizontal", 9, 2, 12, 2))
sketch1.addConstraint(Sketcher.Constraint("Horizontal", 8, 2, 13, 2))
sketch1.addConstraint(Sketcher.Constraint("Horizontal", 6, 2, 15, 2))
sketch1.addConstraint(Sketcher.Constraint("Horizontal", 19, 2, 22, 2))
sketch1.addConstraint(Sketcher.Constraint("Horizontal", 56, 2, 69, 2))
sketch1.addConstraint(Sketcher.Constraint("Horizontal", 51, 2, 71, 2))
sketch1.addConstraint(Sketcher.Constraint("Horizontal", 76, 2, 79, 2))
sketch1.addConstraint(Sketcher.Constraint("Vertical", 1, 2, 4, 2))
sketch1.addConstraint(Sketcher.Constraint("Vertical", 11, 2, 14, 2))
sketch1.addConstraint(Sketcher.Constraint("Vertical", 16, 2, 19, 2))
sketch1.addConstraint(Sketcher.Constraint("Equal", 59, 3))
sketch1.addConstraint(Sketcher.Constraint("Equal", 64, 18))
sketch1.addConstraint(Sketcher.Constraint("Equal", 66, 20))
sketch1.addConstraint(Sketcher.Constraint("Equal", 45, 23))
sketch1.addConstraint(Sketcher.Constraint("Diameter", 68, 4.2))
sketch1.addConstraint(Sketcher.Constraint("Radius", 17, 1.8))
sketch1.addConstraint(Sketcher.Constraint("DistanceX", 68, 3, -1, 1, 10.0))
sketch1.addConstraint(Sketcher.Constraint("DistanceY", 5, 2, -1, 1, 10.0))
sketch1.addConstraint(Sketcher.Constraint("DistanceX", 1, 1, 1, 2, 5.68))
sketch1.addConstraint(Sketcher.Constraint("DistanceX", 21, 2, 21, 1, 1.64))
sketch1.addConstraint(Sketcher.Constraint("DistanceY", 71, 1, 71, 2, 1.96))
sketch1.addConstraint(Sketcher.Constraint("DistanceX", -1, 1, 17, 2, 20.0))
sketch1.addConstraint(Sketcher.Constraint("DistanceX", 4, 2, 4, 1, 2.6593))
sketch1.addConstraint(Sketcher.Constraint("DistanceX", 72, 1, 72, 2, 5.3986))
pad1 = doc.addObject("PartDesign::Pad", "Pad")
body.addObject(pad1)
pad1.Profile = sketch1
pad1.Length = 125

doc.recompute()
